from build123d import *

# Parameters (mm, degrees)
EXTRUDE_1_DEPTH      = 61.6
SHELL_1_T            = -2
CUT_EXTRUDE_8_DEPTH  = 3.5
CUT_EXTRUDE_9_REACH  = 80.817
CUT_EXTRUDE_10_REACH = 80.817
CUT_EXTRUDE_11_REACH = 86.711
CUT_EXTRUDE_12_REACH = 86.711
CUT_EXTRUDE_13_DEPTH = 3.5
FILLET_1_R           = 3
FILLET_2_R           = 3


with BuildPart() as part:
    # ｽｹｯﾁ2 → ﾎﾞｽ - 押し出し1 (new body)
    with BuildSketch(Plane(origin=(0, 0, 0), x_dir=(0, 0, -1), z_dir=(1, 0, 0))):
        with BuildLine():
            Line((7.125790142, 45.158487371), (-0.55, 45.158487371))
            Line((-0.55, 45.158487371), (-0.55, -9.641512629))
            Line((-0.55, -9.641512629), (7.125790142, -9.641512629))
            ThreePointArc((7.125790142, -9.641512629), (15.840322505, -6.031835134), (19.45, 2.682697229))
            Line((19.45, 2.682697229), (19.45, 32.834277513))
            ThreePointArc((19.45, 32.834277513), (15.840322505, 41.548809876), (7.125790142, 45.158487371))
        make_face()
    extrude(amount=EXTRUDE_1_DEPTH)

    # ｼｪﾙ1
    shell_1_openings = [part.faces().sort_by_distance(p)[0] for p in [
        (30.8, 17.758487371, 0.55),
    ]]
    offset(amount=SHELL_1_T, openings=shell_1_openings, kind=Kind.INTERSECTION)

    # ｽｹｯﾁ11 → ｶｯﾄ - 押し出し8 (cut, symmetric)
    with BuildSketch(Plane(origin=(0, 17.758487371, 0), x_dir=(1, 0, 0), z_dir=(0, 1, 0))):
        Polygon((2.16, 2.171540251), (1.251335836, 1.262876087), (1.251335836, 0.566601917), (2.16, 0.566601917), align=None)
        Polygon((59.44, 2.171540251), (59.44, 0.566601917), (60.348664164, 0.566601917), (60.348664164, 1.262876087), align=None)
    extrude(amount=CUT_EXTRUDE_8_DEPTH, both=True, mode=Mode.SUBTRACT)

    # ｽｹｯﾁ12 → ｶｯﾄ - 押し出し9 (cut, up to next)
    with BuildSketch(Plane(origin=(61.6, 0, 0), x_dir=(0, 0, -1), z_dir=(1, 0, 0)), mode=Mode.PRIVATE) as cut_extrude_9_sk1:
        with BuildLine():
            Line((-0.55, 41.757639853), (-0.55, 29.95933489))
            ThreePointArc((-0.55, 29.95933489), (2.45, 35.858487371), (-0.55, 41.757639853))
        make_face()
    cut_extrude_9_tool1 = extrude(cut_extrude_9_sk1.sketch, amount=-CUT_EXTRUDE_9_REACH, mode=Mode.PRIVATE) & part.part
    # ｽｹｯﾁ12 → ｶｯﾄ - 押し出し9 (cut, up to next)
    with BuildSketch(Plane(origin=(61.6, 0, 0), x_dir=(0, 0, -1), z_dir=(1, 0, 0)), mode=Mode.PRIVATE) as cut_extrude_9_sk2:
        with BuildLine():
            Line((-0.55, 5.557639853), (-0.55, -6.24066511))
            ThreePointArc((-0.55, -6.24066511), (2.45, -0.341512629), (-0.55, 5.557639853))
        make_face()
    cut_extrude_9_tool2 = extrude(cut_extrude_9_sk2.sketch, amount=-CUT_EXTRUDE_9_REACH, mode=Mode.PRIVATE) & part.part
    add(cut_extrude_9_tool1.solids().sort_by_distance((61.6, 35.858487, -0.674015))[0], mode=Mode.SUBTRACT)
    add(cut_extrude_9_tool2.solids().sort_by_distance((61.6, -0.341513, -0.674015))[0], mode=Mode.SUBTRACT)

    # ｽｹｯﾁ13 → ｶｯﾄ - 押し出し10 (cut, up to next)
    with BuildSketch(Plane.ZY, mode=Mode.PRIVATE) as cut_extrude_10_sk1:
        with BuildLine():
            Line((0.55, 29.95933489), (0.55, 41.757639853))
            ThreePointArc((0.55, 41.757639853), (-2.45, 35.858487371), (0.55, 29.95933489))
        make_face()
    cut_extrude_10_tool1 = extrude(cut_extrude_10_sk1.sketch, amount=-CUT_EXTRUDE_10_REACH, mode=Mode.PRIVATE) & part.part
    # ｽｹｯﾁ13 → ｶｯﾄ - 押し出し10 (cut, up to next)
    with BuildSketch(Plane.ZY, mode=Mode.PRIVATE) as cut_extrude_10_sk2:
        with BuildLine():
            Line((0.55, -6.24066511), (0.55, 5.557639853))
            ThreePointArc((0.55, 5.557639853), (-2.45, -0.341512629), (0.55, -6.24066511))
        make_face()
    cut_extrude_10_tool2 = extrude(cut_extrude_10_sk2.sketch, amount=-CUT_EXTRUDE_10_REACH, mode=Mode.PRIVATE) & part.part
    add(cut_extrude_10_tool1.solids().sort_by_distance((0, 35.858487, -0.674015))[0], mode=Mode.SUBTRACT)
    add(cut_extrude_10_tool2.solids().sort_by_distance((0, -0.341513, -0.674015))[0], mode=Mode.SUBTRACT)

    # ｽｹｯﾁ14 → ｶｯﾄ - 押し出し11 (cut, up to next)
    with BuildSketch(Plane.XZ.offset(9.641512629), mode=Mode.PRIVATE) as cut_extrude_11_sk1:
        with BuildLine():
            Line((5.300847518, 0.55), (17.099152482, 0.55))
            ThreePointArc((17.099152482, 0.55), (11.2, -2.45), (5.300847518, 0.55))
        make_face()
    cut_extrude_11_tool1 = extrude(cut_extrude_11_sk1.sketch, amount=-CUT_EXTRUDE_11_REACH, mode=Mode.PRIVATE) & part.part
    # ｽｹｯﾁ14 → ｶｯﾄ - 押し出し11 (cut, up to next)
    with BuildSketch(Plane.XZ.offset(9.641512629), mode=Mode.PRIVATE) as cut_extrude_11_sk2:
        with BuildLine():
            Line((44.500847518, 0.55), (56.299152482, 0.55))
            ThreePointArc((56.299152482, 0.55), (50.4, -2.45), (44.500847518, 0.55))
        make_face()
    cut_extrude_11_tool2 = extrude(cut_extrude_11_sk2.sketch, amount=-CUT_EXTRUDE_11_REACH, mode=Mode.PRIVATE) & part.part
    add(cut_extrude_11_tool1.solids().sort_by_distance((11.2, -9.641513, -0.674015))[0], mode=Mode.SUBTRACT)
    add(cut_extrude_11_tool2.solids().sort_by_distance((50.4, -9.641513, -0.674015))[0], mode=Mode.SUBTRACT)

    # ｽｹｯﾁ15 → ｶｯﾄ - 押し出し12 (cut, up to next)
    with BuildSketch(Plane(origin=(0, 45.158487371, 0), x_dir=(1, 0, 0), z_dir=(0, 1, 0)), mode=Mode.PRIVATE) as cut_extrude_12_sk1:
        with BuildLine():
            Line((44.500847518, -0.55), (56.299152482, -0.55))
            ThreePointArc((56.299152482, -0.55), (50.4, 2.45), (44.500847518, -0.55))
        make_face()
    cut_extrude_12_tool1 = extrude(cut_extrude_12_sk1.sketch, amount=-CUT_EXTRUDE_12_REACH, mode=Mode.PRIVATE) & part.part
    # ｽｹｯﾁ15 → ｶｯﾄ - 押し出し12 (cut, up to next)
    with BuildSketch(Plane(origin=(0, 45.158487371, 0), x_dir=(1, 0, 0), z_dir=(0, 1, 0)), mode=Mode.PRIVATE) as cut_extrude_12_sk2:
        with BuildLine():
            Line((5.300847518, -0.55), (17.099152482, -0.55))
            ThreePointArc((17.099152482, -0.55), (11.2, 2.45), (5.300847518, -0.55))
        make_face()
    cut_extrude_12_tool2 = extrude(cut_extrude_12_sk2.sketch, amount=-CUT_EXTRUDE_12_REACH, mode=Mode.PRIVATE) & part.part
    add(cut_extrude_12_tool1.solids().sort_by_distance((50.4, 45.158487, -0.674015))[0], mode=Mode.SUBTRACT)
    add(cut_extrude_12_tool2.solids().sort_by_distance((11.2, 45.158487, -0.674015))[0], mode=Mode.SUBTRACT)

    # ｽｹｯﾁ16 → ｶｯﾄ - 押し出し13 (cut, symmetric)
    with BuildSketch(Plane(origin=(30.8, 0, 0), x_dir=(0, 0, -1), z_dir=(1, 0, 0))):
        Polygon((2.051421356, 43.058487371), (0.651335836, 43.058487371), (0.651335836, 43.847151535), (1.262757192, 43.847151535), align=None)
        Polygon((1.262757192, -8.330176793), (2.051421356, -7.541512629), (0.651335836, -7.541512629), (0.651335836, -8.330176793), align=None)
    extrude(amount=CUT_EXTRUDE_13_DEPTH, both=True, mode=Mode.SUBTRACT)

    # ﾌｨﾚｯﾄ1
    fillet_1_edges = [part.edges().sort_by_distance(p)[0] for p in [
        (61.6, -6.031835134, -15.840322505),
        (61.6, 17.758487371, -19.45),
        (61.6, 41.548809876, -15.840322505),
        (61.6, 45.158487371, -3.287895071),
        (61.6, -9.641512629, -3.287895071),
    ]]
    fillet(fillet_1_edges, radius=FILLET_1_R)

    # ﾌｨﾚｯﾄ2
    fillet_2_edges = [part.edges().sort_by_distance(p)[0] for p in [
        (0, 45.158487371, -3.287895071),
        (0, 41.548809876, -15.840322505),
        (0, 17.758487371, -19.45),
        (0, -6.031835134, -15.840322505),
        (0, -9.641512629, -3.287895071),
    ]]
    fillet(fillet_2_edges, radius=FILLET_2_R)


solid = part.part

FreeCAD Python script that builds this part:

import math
import FreeCAD as App
import Part
import Sketcher

V = App.Vector
Q = App.Units.Quantity


def edges_at(feature, points):
    """Names of the edges that pass closest to the given points."""
    edges = feature.Shape.Edges
    near = lambda p: min(range(len(edges)), key=lambda i: edges[i].distToShape(Part.Vertex(*p))[0])
    return sorted({f"Edge{near(p) + 1}" for p in points})


def faces_at(feature, points):
    """Names of the faces that lie closest to the given points."""
    faces = feature.Shape.Faces
    near = lambda p: min(range(len(faces)), key=lambda i: faces[i].distToShape(Part.Vertex(*p))[0])
    return sorted({f"Face{near(p) + 1}" for p in points})

doc = App.newDocument("Part")
body = doc.addObject("PartDesign::Body", "Body")

# Sketch on YZ plane
sketch1 = body.newObject("Sketcher::SketchObject", "Sketch")
sketch1.AttachmentSupport = (doc.getObject("YZ_Plane"), [""])
sketch1.MapMode = "FlatFace"
sketch1.addGeometry([
    Part.LineSegment(V(45, -7, 0), V(45, 1, 0)),  # 0
    Part.LineSegment(V(45, 1, 0), V(-10, 1, 0)),  # 1
    Part.LineSegment(V(-10, 1, 0), V(-10, -7, 0)),  # 2
    Part.ArcOfCircle(Part.Circle(V(3, -7, 0), V(0, 0, 1), 12), math.radians(-180), math.radians(-90)),  # 3
    Part.LineSegment(V(3, -19, 0), V(33, -19, 0)),  # 4
    Part.ArcOfCircle(Part.Circle(V(33, -7, 0), V(0, 0, 1), 12), math.radians(-90), math.radians(0)),  # 5
], False)
sketch1.addConstraint([
    Sketcher.Constraint("Coincident", 0, 2, 1, 1),
    Sketcher.Constraint("Coincident", 1, 2, 2, 1),
    Sketcher.Constraint("Tangent", 2, 2, 3, 1),
    Sketcher.Constraint("Tangent", 3, 2, 4, 1),
    Sketcher.Constraint("Tangent", 4, 2, 5, 1),
    Sketcher.Constraint("Tangent", 5, 2, 0, 1),
    Sketcher.Constraint("Vertical", 0),
    Sketcher.Constraint("Horizontal", 1),
    Sketcher.Constraint("Vertical", 2),
    Sketcher.Constraint("Horizontal", 4),
    Sketcher.Constraint("Equal", 3, 5),
    Sketcher.Constraint("DistanceX", 1, 2, 1, 1, Q("54.8 mm")),
    Sketcher.Constraint("DistanceY", 3, 2, 1, 2, Q("20 mm")),
    Sketcher.Constraint("DistanceY", -1, 1, 0, 2, Q("0.55 mm")),
    Sketcher.Constraint("Radius", 3, Q("12.32421 mm")),
    Sketcher.Constraint("DistanceX", -1, 1, 3, 3, Q("2.682697 mm")),
])
pad1 = body.newObject("PartDesign::Pad", "Pad")
pad1.Profile = sketch1
pad1.Length = 61.6
doc.recompute()

thickness = body.newObject("PartDesign::Thickness", "Thickness")
thickness.Base = (pad1, faces_at(pad1, [(30.8, 17.758, 0.55)]))
thickness.Value = 2
thickness.Reversed = True
thickness.Join = "Intersection"

# Sketch on XZ plane
sketch2 = body.newObject("Sketcher::SketchObject", "Sketch001")
sketch2.AttachmentSupport = (doc.getObject("XZ_Plane"), [""])
sketch2.MapMode = "FlatFace"
sketch2.AttachmentOffset = App.Placement(V(0, 0, -17.758487), App.Rotation())
sketch2.addGeometry([
    Part.LineSegment(V(2.2, -2.2, 0), V(1.3, -1.3, 0)),  # 0
    Part.LineSegment(V(1.3, -1.3, 0), V(1.3, -0.6, 0)),  # 1
    Part.LineSegment(V(1.3, -0.6, 0), V(2.2, -0.6, 0)),  # 2
    Part.LineSegment(V(2.2, -0.6, 0), V(2.2, -2.2, 0)),  # 3
    Part.LineSegment(V(59.4, -2.2, 0), V(59.4, -0.6, 0)),  # 4
    Part.LineSegment(V(59.4, -0.6, 0), V(60.3, -0.6, 0)),  # 5
    Part.LineSegment(V(60.3, -0.6, 0), V(60.3, -1.3, 0)),  # 6
    Part.LineSegment(V(60.3, -1.3, 0), V(59.4, -2.2, 0)),  # 7
], False)
sketch2.addConstraint([
    Sketcher.Constraint("Coincident", 0, 2, 1, 1),
    Sketcher.Constraint("Coincident", 1, 2, 2, 1),
    Sketcher.Constraint("Coincident", 2, 2, 3, 1),
    Sketcher.Constraint("Coincident", 3, 2, 0, 1),
    Sketcher.Constraint("Coincident", 4, 2, 5, 1),
    Sketcher.Constraint("Coincident", 5, 2, 6, 1),
    Sketcher.Constraint("Coincident", 6, 2, 7, 1),
    Sketcher.Constraint("Coincident", 7, 2, 4, 1),
    Sketcher.Constraint("Vertical", 1),
    Sketcher.Constraint("Horizontal", 2),
    Sketcher.Constraint("Vertical", 3),
    Sketcher.Constraint("Vertical", 4),
    Sketcher.Constraint("Horizontal", 5),
    Sketcher.Constraint("Vertical", 6),
    Sketcher.Constraint("Perpendicular", 0, 7),
    Sketcher.Constraint("Horizontal", 2, 2, 4, 2),
    Sketcher.Constraint("Horizontal", 0, 2, 6, 2),
    Sketcher.Constraint("Horizontal", 3, 2, 7, 2),
    Sketcher.Constraint("Equal", 2, 5),
    Sketcher.Constraint("DistanceX", -1, 1, 2, 2, Q("2.16 mm")),
    Sketcher.Constraint("DistanceX", -1, 1, 4, 2, Q("59.44 mm")),
    Sketcher.Constraint("DistanceY", 3, 2, 3, 1, Q("1.604938 mm")),
    Sketcher.Constraint("DistanceY", 1, 2, -1, 1, Q("0.566602 mm")),
    Sketcher.Constraint("DistanceX", 2, 1, 2, 2, Q("0.908664 mm")),
])
pocket1 = body.newObject("PartDesign::Pocket", "Pocket")
pocket1.Profile = sketch2
pocket1.Length = 7
pocket1.Midplane = True

# Sketch on YZ plane
sketch3 = body.newObject("Sketcher::SketchObject", "Sketch002")
sketch3.AttachmentSupport = (doc.getObject("YZ_Plane"), [""])
sketch3.MapMode = "FlatFace"
sketch3.AttachmentOffset = App.Placement(V(0, 0, 61.6), App.Rotation())
sketch3.addGeometry([
    Part.LineSegment(V(42, 1, 0), V(30, 1, 0)),
    Part.ArcOfCircle(Part.Circle(V(36, 5, 0), V(0, 0, 1), 7), math.radians(-144), math.radians(-36)),
], False)
sketch3.addConstraint([
    Sketcher.Constraint("Coincident", 0, 1, 1, 2),
    Sketcher.Constraint("Coincident", 1, 1, 0, 2),
    Sketcher.Constraint("Horizontal", 0),
    Sketcher.Constraint("Radius", 1, Q("7.3 mm")),
    Sketcher.Constraint("DistanceY", 0, 1, 1, 3, Q("4.3 mm")),
    Sketcher.Constraint("DistanceY", -1, 1, 1, 3, Q("4.85 mm")),
    Sketcher.Constraint("DistanceX", -1, 1, 0, 1, Q("41.75764 mm")),
])
pocket2 = body.newObject("PartDesign::Pocket", "Pocket001")
pocket2.Profile = sketch3
pocket2.Type = "UpToFirst"

# Sketch on YZ plane
sketch4 = body.newObject("Sketcher::SketchObject", "Sketch003")
sketch4.AttachmentSupport = (doc.getObject("YZ_Plane"), [""])
sketch4.MapMode = "FlatFace"
sketch4.AttachmentOffset = App.Placement(V(0, 0, 61.6), App.Rotation())
sketch4.addGeometry([
    Part.LineSegment(V(6, 1, 0), V(-6, 1, 0)),
    Part.ArcOfCircle(Part.Circle(V(0, 5, 0), V(0, 0, 1), 7), math.radians(-144), math.radians(-36)),
], False)
sketch4.addConstraint([
    Sketcher.Constraint("Coincident", 0, 1, 1, 2),
    Sketcher.Constraint("Coincident", 1, 1, 0, 2),
    Sketcher.Constraint("Horizontal", 0),
    Sketcher.Constraint("Radius", 1, Q("7.3 mm")),
    Sketcher.Constraint("DistanceY", 0, 1, 1, 3, Q("4.3 mm")),
    Sketcher.Constraint("DistanceY", -1, 1, 1, 3, Q("4.85 mm")),
    Sketcher.Constraint("DistanceX", -1, 1, 0, 1, Q("5.55764 mm")),
])
pocket3 = body.newObject("PartDesign::Pocket", "Pocket002")
pocket3.Profile = sketch4
pocket3.Type = "UpToFirst"

# Sketch on YZ plane
sketch5 = body.newObject("Sketcher::SketchObject", "Sketch004")
sketch5.AttachmentSupport = (doc.getObject("YZ_Plane"), [""])
sketch5.MapMode = "FlatFace"
sketch5.addGeometry([
    Part.LineSegment(V(30, 1, 0), V(42, 1, 0)),
    Part.ArcOfCircle(Part.Circle(V(36, 5, 0), V(0, 0, 1), 7), math.radians(-144), math.radians(-36)),
], False)
sketch5.addConstraint([
    Sketcher.Constraint("Coincident", 0, 1, 1, 1),
    Sketcher.Constraint("Coincident", 1, 2, 0, 2),
    Sketcher.Constraint("Horizontal", 0),
    Sketcher.Constraint("Radius", 1, Q("7.3 mm")),
    Sketcher.Constraint("DistanceY", 0, 1, 1, 3, Q("4.3 mm")),
    Sketcher.Constraint("DistanceY", -1, 1, 1, 3, Q("4.85 mm")),
    Sketcher.Constraint("DistanceX", -1, 1, 1, 2, Q("41.75764 mm")),
])
pocket4 = body.newObject("PartDesign::Pocket", "Pocket003")
pocket4.Profile = sketch5
pocket4.Type = "UpToFirst"
pocket4.Reversed = True

# Sketch on YZ plane
sketch6 = body.newObject("Sketcher::SketchObject", "Sketch005")
sketch6.AttachmentSupport = (doc.getObject("YZ_Plane"), [""])
sketch6.MapMode = "FlatFace"
sketch6.addGeometry([
    Part.LineSegment(V(-6, 1, 0), V(6, 1, 0)),
    Part.ArcOfCircle(Part.Circle(V(0, 5, 0), V(0, 0, 1), 7), math.radians(-144), math.radians(-36)),
], False)
sketch6.addConstraint([
    Sketcher.Constraint("Coincident", 0, 1, 1, 1),
    Sketcher.Constraint("Coincident", 1, 2, 0, 2),
    Sketcher.Constraint("Horizontal", 0),
    Sketcher.Constraint("Radius", 1, Q("7.3 mm")),
    Sketcher.Constraint("DistanceY", 0, 1, 1, 3, Q("4.3 mm")),
    Sketcher.Constraint("DistanceY", -1, 1, 1, 3, Q("4.85 mm")),
    Sketcher.Constraint("DistanceX", -1, 1, 1, 2, Q("5.55764 mm")),
])
pocket5 = body.newObject("PartDesign::Pocket", "Pocket004")
pocket5.Profile = sketch6
pocket5.Type = "UpToFirst"
pocket5.Reversed = True

# Sketch on XZ plane
sketch7 = body.newObject("Sketcher::SketchObject", "Sketch006")
sketch7.AttachmentSupport = (doc.getObject("XZ_Plane"), [""])
sketch7.MapMode = "FlatFace"
sketch7.AttachmentOffset = App.Placement(V(0, 0, 9.641513), App.Rotation())
sketch7.addGeometry([
    Part.LineSegment(V(17, 1, 0), V(5, 1, 0)),
    Part.ArcOfCircle(Part.Circle(V(11, 5, 0), V(0, 0, 1), 7), math.radians(-144), math.radians(-36)),
], False)
sketch7.addConstraint([
    Sketcher.Constraint("Coincident", 0, 1, 1, 2),
    Sketcher.Constraint("Coincident", 1, 1, 0, 2),
    Sketcher.Constraint("Horizontal", 0),
    Sketcher.Constraint("Radius", 1, Q("7.3 mm")),
    Sketcher.Constraint("DistanceX", -1, 1, 1, 3, Q("11.2 mm")),
    Sketcher.Constraint("DistanceY", 0, 1, 1, 3, Q("4.3 mm")),
    Sketcher.Constraint("DistanceY", -1, 1, 1, 3, Q("4.85 mm")),
])
pocket6 = body.newObject("PartDesign::Pocket", "Pocket005")
pocket6.Profile = sketch7
pocket6.Type = "UpToFirst"

# Sketch on XZ plane
sketch8 = body.newObject("Sketcher::SketchObject", "Sketch007")
sketch8.AttachmentSupport = (doc.getObject("XZ_Plane"), [""])
sketch8.MapMode = "FlatFace"
sketch8.AttachmentOffset = App.Placement(V(0, 0, 9.641513), App.Rotation())
sketch8.addGeometry([
    Part.LineSegment(V(56, 1, 0), V(45, 1, 0)),
    Part.ArcOfCircle(Part.Circle(V(50, 5, 0), V(0, 0, 1), 7), math.radians(-144), math.radians(-36)),
], False)
sketch8.addConstraint([
    Sketcher.Constraint("Coincident", 0, 1, 1, 2),
    Sketcher.Constraint("Coincident", 1, 1, 0, 2),
    Sketcher.Constraint("Horizontal", 0),
    Sketcher.Constraint("Radius", 1, Q("7.3 mm")),
    Sketcher.Constraint("DistanceX", -1, 1, 1, 3, Q("50.4 mm")),
    Sketcher.Constraint("DistanceY", 0, 1, 1, 3, Q("4.3 mm")),
    Sketcher.Constraint("DistanceY", -1, 1, 1, 3, Q("4.85 mm")),
])
pocket7 = body.newObject("PartDesign::Pocket", "Pocket006")
pocket7.Profile = sketch8
pocket7.Type = "UpToFirst"

# Sketch on XZ plane
sketch9 = body.newObject("Sketcher::SketchObject", "Sketch008")
sketch9.AttachmentSupport = (doc.getObject("XZ_Plane"), [""])
sketch9.MapMode = "FlatFace"
sketch9.AttachmentOffset = App.Placement(V(0, 0, -45.158487), App.Rotation())
sketch9.addGeometry([
    Part.LineSegment(V(45, 1, 0), V(56, 1, 0)),
    Part.ArcOfCircle(Part.Circle(V(50, 5, 0), V(0, 0, 1), 7), math.radians(-144), math.radians(-36)),
], False)
sketch9.addConstraint([
    Sketcher.Constraint("Coincident", 0, 1, 1, 1),
    Sketcher.Constraint("Coincident", 1, 2, 0, 2),
    Sketcher.Constraint("Horizontal", 0),
    Sketcher.Constraint("Radius", 1, Q("7.3 mm")),
    Sketcher.Constraint("DistanceX", -1, 1, 1, 3, Q("50.4 mm")),
    Sketcher.Constraint("DistanceY", 0, 1, 1, 3, Q("4.3 mm")),
    Sketcher.Constraint("DistanceY", -1, 1, 1, 3, Q("4.85 mm")),
])
pocket8 = body.newObject("PartDesign::Pocket", "Pocket007")
pocket8.Profile = sketch9
pocket8.Type = "UpToFirst"
pocket8.Reversed = True

# Sketch on XZ plane
sketch10 = body.newObject("Sketcher::SketchObject", "Sketch009")
sketch10.AttachmentSupport = (doc.getObject("XZ_Plane"), [""])
sketch10.MapMode = "FlatFace"
sketch10.AttachmentOffset = App.Placement(V(0, 0, -45.158487), App.Rotation())
sketch10.addGeometry([
    Part.LineSegment(V(5, 1, 0), V(17, 1, 0)),
    Part.ArcOfCircle(Part.Circle(V(11, 5, 0), V(0, 0, 1), 7), math.radians(-144), math.radians(-36)),
], False)
sketch10.addConstraint([
    Sketcher.Constraint("Coincident", 0, 1, 1, 1),
    Sketcher.Constraint("Coincident", 1, 2, 0, 2),
    Sketcher.Constraint("Horizontal", 0),
    Sketcher.Constraint("Radius", 1, Q("7.3 mm")),
    Sketcher.Constraint("DistanceX", -1, 1, 1, 3, Q("11.2 mm")),
    Sketcher.Constraint("DistanceY", 0, 1, 1, 3, Q("4.3 mm")),
    Sketcher.Constraint("DistanceY", -1, 1, 1, 3, Q("4.85 mm")),
])
pocket9 = body.newObject("PartDesign::Pocket", "Pocket008")
pocket9.Profile = sketch10
pocket9.Type = "UpToFirst"
pocket9.Reversed = True

# Sketch on YZ plane
sketch11 = body.newObject("Sketcher::SketchObject", "Sketch010")
sketch11.AttachmentSupport = (doc.getObject("YZ_Plane"), [""])
sketch11.MapMode = "FlatFace"
sketch11.AttachmentOffset = App.Placement(V(0, 0, 30.8), App.Rotation())
sketch11.addGeometry([
    Part.LineSegment(V(43.1, -0.7, 0), V(43.1, -2.1, 0)),  # 0
    Part.LineSegment(V(43.1, -2.1, 0), V(43.8, -1.3, 0)),  # 1
    Part.LineSegment(V(43.8, -1.3, 0), V(43.8, -0.7, 0)),  # 2
    Part.LineSegment(V(43.8, -0.7, 0), V(43.1, -0.7, 0)),  # 3
    Part.LineSegment(V(-8.3, -1.3, 0), V(-7.5, -2.1, 0)),  # 4
    Part.LineSegment(V(-7.5, -2.1, 0), V(-7.5, -0.7, 0)),  # 5
    Part.LineSegment(V(-7.5, -0.7, 0), V(-8.3, -0.7, 0)),  # 6
    Part.LineSegment(V(-8.3, -0.7, 0), V(-8.3, -1.3, 0)),  # 7
], False)
sketch11.addConstraint([
    Sketcher.Constraint("Coincident", 0, 2, 1, 1),
    Sketcher.Constraint("Coincident", 1, 2, 2, 1),
    Sketcher.Constraint("Coincident", 2, 2, 3, 1),
    Sketcher.Constraint("Coincident", 3, 2, 0, 1),
    Sketcher.Constraint("Coincident", 4, 2, 5, 1),
    Sketcher.Constraint("Coincident", 5, 2, 6, 1),
    Sketcher.Constraint("Coincident", 6, 2, 7, 1),
    Sketcher.Constraint("Coincident", 7, 2, 4, 1),
    Sketcher.Constraint("Vertical", 0),
    Sketcher.Constraint("Vertical", 2),
    Sketcher.Constraint("Horizontal", 3),
    Sketcher.Constraint("Vertical", 5),
    Sketcher.Constraint("Horizontal", 6),
    Sketcher.Constraint("Vertical", 7),
    Sketcher.Constraint("Perpendicular", 1, 4),
    Sketcher.Constraint("Horizontal", 0, 2, 4, 2),
    Sketcher.Constraint("Horizontal", 3, 2, 5, 2),
    Sketcher.Constraint("Horizontal", 1, 2, 7, 2),
    Sketcher.Constraint("Equal", 3, 6),
    Sketcher.Constraint("DistanceX", 4, 2, 0, 2, Q("50.6 mm")),
    Sketcher.Constraint("DistanceY", 2, 1, 2, 2, Q("0.611421 mm")),
    Sketcher.Constraint("Distance", 1, Q("1.11534 mm")),
    Sketcher.Constraint("DistanceY", 0, 2, -1, 1, Q("2.051421 mm")),
    Sketcher.Constraint("DistanceX", -1, 1, 1, 2, Q("43.847152 mm")),
])
pocket10 = body.newObject("PartDesign::Pocket", "Pocket009")
pocket10.Profile = sketch11
pocket10.Length = 7
pocket10.Midplane = True
doc.recompute()

fillet = body.newObject("PartDesign::Fillet", "Fillet")
fillet.Base = (pocket10, edges_at(pocket10, [
    (61.6, -6.032, -15.84),
    (61.6, 17.758, -19.45),
    (61.6, 41.549, -15.84),
    (61.6, 45.158, -3.288),
    (61.6, -9.642, -3.288),
]))
fillet.Radius = 3
doc.recompute()

fillet2 = body.newObject("PartDesign::Fillet", "Fillet001")
fillet2.Base = (fillet, edges_at(fillet, [
    (0, 45.158, -3.288),
    (0, 41.549, -15.84),
    (0, 17.758, -19.45),
    (0, -6.032, -15.84),
    (0, -9.642, -3.288),
]))
fillet2.Radius = 3

doc.recompute()
